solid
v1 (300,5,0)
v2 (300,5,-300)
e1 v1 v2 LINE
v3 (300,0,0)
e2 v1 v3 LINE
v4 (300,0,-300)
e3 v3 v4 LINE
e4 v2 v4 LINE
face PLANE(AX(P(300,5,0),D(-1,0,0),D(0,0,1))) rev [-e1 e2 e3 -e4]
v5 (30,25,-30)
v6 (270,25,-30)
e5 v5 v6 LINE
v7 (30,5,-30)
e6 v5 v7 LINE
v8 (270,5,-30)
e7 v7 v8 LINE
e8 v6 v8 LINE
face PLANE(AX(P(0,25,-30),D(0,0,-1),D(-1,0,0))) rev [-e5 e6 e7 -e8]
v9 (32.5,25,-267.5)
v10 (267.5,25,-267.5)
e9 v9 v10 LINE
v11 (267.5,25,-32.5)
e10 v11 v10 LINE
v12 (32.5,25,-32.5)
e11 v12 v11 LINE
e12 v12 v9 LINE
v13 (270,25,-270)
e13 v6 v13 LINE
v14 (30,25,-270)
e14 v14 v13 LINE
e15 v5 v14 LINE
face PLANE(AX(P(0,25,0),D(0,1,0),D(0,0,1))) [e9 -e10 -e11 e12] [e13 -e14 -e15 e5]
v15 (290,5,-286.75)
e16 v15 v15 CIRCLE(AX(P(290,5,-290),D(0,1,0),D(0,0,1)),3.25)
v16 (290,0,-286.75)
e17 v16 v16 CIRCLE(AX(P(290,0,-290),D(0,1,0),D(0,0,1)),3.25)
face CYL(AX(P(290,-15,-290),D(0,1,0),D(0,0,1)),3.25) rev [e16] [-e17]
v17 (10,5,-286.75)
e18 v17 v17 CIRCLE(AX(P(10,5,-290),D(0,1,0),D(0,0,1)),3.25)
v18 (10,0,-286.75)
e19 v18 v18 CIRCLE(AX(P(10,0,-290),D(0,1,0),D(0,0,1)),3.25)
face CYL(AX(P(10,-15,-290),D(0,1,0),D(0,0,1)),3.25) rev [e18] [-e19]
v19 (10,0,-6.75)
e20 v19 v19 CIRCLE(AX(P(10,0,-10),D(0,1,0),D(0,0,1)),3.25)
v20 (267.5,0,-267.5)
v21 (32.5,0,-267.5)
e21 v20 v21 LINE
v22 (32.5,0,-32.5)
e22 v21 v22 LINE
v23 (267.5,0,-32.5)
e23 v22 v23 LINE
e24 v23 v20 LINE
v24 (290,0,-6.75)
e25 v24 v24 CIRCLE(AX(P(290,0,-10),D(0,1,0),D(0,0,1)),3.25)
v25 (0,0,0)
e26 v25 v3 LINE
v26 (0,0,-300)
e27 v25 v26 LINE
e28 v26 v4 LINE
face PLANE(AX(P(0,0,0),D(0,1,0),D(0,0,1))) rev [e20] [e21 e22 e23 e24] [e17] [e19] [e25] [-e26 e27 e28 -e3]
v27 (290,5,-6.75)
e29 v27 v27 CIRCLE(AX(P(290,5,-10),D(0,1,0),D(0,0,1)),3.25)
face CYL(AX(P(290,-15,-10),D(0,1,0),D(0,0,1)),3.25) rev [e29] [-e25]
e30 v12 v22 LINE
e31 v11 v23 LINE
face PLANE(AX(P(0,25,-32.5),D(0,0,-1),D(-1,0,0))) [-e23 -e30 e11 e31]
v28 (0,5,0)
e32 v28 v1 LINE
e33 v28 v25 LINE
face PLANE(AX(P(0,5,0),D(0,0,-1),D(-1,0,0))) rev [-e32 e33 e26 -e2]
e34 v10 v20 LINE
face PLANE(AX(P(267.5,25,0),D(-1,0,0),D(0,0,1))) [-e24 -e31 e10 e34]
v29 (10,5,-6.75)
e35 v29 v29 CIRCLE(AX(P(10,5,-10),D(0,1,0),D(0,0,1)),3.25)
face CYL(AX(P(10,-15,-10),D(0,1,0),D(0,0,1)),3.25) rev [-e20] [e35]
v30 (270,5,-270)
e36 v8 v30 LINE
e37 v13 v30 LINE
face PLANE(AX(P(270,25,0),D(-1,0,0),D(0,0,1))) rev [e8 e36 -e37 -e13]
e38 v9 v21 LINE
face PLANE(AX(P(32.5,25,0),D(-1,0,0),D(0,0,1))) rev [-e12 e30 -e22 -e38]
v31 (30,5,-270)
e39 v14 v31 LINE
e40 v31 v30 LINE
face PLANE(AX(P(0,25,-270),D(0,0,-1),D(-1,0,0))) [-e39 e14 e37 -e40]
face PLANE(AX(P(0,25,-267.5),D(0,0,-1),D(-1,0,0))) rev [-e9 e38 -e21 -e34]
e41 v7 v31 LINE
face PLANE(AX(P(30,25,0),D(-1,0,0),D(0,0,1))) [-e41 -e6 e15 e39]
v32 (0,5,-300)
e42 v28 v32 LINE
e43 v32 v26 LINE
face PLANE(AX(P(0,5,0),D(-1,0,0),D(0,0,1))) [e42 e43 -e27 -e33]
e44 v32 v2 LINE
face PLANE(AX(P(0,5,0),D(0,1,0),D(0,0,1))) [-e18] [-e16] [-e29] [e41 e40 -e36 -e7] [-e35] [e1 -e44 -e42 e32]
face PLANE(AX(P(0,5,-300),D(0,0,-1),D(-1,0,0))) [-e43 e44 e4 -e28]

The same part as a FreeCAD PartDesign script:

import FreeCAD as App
import Part
import Sketcher

doc = App.newDocument("Part")
params = doc.addObject("Spreadsheet::Sheet", "Params")
for row, (alias, value) in enumerate([
    ("sketch1_width", "300 mm"),
    ("pad1_length", "5 mm"),
    ("sketch2_width", "240 mm"),
    ("sketch2_width2", "230.5 mm"),
    ("pad2_length", "20 mm"),
    ("sketch3_diameter", "6.5 mm"),
    ("pocket1_length", "20 mm"),
    ("sketch4_width", "240 mm"),
    ("pocket2_length", "20 mm"),
    ("sketch5_width", "240 mm"),
    ("sketch5_width2", "235 mm"),
    ("pad3_length", "20 mm"),
    ("sketch6_width", "235 mm"),
    ("pocket3_length", "20 mm"),
], start=1):
    params.set(f"A{row}", alias)
    params.set(f"B{row}", "=" + value)
    params.setAlias(f"B{row}", alias)

body = doc.addObject("PartDesign::Body", "Body")

# Sketch on XZ plane
sketch1 = body.newObject("Sketcher::SketchObject", "Sketch")
sketch1.AttachmentSupport = (doc.getObject("XZ_Plane"), [""])
sketch1.MapMode = "FlatFace"
sketch1.addGeometry([
    Part.LineSegment(App.Vector(0, -300, 0), App.Vector(0, 0, 0)),
    Part.LineSegment(App.Vector(0, 0, 0), App.Vector(300, 0, 0)),
    Part.LineSegment(App.Vector(300, 0, 0), App.Vector(300, -300, 0)),
    Part.LineSegment(App.Vector(300, -300, 0), App.Vector(0, -300, 0)),
], False)
sketch1.addConstraint([
    Sketcher.Constraint("Coincident", 0, 2, 1, 1),
    Sketcher.Constraint("Coincident", 1, 2, 2, 1),
    Sketcher.Constraint("Coincident", 2, 2, 3, 1),
    Sketcher.Constraint("Coincident", 3, 2, 0, 1),
    Sketcher.Constraint("Vertical", 0),
    Sketcher.Constraint("Horizontal", 1),
    Sketcher.Constraint("Vertical", 2),
    Sketcher.Constraint("Horizontal", 3),
    Sketcher.Constraint("Coincident", 0, 2, -1, 1),
    Sketcher.Constraint("Equal", 3, 0),
    Sketcher.Constraint("DistanceX", 1, 1, 1, 2, 300.0),
])
sketch1.setExpression("Constraints[10]", "Params.sketch1_width")
pad1 = body.newObject("PartDesign::Pad", "Pad")
pad1.Profile = sketch1
pad1.setExpression("Length", "Params.pad1_length")
pad1.Reversed = True

# Sketch on XZ plane
sketch2 = body.newObject("Sketcher::SketchObject", "Sketch001")
sketch2.AttachmentSupport = (doc.getObject("XZ_Plane"), [""])
sketch2.MapMode = "FlatFace"
sketch2.AttachmentOffset = App.Placement(App.Vector(0, 0, -5), App.Rotation())
sketch2.addGeometry([
    Part.LineSegment(App.Vector(30, -270, 0), App.Vector(30, -30, 0)),  # 0
    Part.LineSegment(App.Vector(30, -30, 0), App.Vector(270, -30, 0)),  # 1
    Part.LineSegment(App.Vector(270, -30, 0), App.Vector(270, -270, 0)),  # 2
    Part.LineSegment(App.Vector(270, -270, 0), App.Vector(30, -270, 0)),  # 3
    Part.LineSegment(App.Vector(265, -35, 0), App.Vector(35, -35, 0)),  # 4
    Part.LineSegment(App.Vector(35, -35, 0), App.Vector(35, -265, 0)),  # 5
    Part.LineSegment(App.Vector(35, -265, 0), App.Vector(265, -265, 0)),  # 6
    Part.LineSegment(App.Vector(265, -265, 0), App.Vector(265, -35, 0)),  # 7
], False)
sketch2.addConstraint([
    Sketcher.Constraint("Coincident", 0, 2, 1, 1),
    Sketcher.Constraint("Coincident", 1, 2, 2, 1),
    Sketcher.Constraint("Coincident", 2, 2, 3, 1),
    Sketcher.Constraint("Coincident", 3, 2, 0, 1),
    Sketcher.Constraint("Coincident", 4, 2, 5, 1),
    Sketcher.Constraint("Coincident", 5, 2, 6, 1),
    Sketcher.Constraint("Coincident", 6, 2, 7, 1),
    Sketcher.Constraint("Coincident", 7, 2, 4, 1),
    Sketcher.Constraint("Vertical", 0),
    Sketcher.Constraint("Horizontal", 1),
    Sketcher.Constraint("Vertical", 2),
    Sketcher.Constraint("Horizontal", 3),
    Sketcher.Constraint("Horizontal", 4),
    Sketcher.Constraint("Vertical", 5),
    Sketcher.Constraint("Horizontal", 6),
    Sketcher.Constraint("Vertical", 7),
    Sketcher.Constraint("Equal", 3, 0),
    Sketcher.Constraint("Equal", 6, 5),
    Sketcher.Constraint("DistanceX", 1, 1, 1, 2, 240.0),
    Sketcher.Constraint("DistanceX", 4, 2, 4, 1, 230.5),
    Sketcher.Constraint("DistanceX", -1, 1, 0, 2, 30.0),
    Sketcher.Constraint("DistanceY", 0, 2, -1, 1, 30.0),
    Sketcher.Constraint("DistanceX", -1, 1, 4, 2, 34.75),
    Sketcher.Constraint("DistanceY", 4, 2, -1, 1, 34.75),
])
sketch2.setExpression("Constraints[18]", "Params.sketch2_width")
sketch2.setExpression("Constraints[19]", "Params.sketch2_width2")
pad2 = body.newObject("PartDesign::Pad", "Pad001")
pad2.Profile = sketch2
pad2.setExpression("Length", "Params.pad2_length")
pad2.Reversed = True

# Sketch on XZ plane
sketch3 = body.newObject("Sketcher::SketchObject", "Sketch002")
sketch3.AttachmentSupport = (doc.getObject("XZ_Plane"), [""])
sketch3.MapMode = "FlatFace"
sketch3.AttachmentOffset = App.Placement(App.Vector(0, 0, -5), App.Rotation())
sketch3.addGeometry([
    Part.Circle(App.Vector(10, -10, 0), App.Vector(0, 0, 1), 3.2),
    Part.Circle(App.Vector(290, -10, 0), App.Vector(0, 0, 1), 3.2),
    Part.Circle(App.Vector(290, -290, 0), App.Vector(0, 0, 1), 3.2),
    Part.Circle(App.Vector(10, -290, 0), App.Vector(0, 0, 1), 3.2),
], False)
sketch3.addConstraint([
    Sketcher.Constraint("Equal", 0, 1),
    Sketcher.Constraint("Equal", 1, 2),
    Sketcher.Constraint("Equal", 2, 3),
    Sketcher.Constraint("Horizontal", 0, 3, 1, 3),
    Sketcher.Constraint("Horizontal", 2, 3, 3, 3),
    Sketcher.Constraint("Vertical", 1, 3, 2, 3),
    Sketcher.Constraint("Vertical", 0, 3, 3, 3),
    Sketcher.Constraint("Diameter", 0, 6.5),
    Sketcher.Constraint("DistanceX", -1, 1, 0, 3, 10.0),
    Sketcher.Constraint("DistanceY", 0, 3, -1, 1, 10.0),
    Sketcher.Constraint("DistanceX", -1, 1, 1, 3, 290.0),
    Sketcher.Constraint("DistanceY", 2, 3, -1, 1, 290.0),
])
sketch3.setExpression("Constraints[7]", "Params.sketch3_diameter")
pocket1 = body.newObject("PartDesign::Pocket", "Pocket")
pocket1.Profile = sketch3
pocket1.setExpression("Length", "Params.pocket1_length")
pocket1.Reversed = True

# Sketch on XZ plane
sketch4 = body.newObject("Sketcher::SketchObject", "Sketch003")
sketch4.AttachmentSupport = (doc.getObject("XZ_Plane"), [""])
sketch4.MapMode = "FlatFace"
sketch4.AttachmentOffset = App.Placement(App.Vector(0, 0, -25), App.Rotation())
sketch4.addGeometry([
    Part.LineSegment(App.Vector(30, -270, 0), App.Vector(30, -30, 0)),
    Part.LineSegment(App.Vector(30, -30, 0), App.Vector(270, -30, 0)),
    Part.LineSegment(App.Vector(270, -30, 0), App.Vector(270, -270, 0)),
    Part.LineSegment(App.Vector(270, -270, 0), App.Vector(30, -270, 0)),
], False)
sketch4.addConstraint([
    Sketcher.Constraint("Coincident", 0, 2, 1, 1),
    Sketcher.Constraint("Coincident", 1, 2, 2, 1),
    Sketcher.Constraint("Coincident", 2, 2, 3, 1),
    Sketcher.Constraint("Coincident", 3, 2, 0, 1),
    Sketcher.Constraint("Vertical", 0),
    Sketcher.Constraint("Horizontal", 1),
    Sketcher.Constraint("Vertical", 2),
    Sketcher.Constraint("Horizontal", 3),
    Sketcher.Constraint("Equal", 3, 0),
    Sketcher.Constraint("DistanceX", 1, 1, 1, 2, 240.0),
    Sketcher.Constraint("DistanceX", -1, 1, 0, 2, 30.0),
    Sketcher.Constraint("DistanceY", 0, 2, -1, 1, 30.0),
])
sketch4.setExpression("Constraints[9]", "Params.sketch4_width")
pocket2 = body.newObject("PartDesign::Pocket", "Pocket001")
pocket2.Profile = sketch4
pocket2.setExpression("Length", "Params.pocket2_length")
pocket2.Reversed = True

# Sketch on XZ plane
sketch5 = body.newObject("Sketcher::SketchObject", "Sketch004")
sketch5.AttachmentSupport = (doc.getObject("XZ_Plane"), [""])
sketch5.MapMode = "FlatFace"
sketch5.AttachmentOffset = App.Placement(App.Vector(0, 0, -5), App.Rotation())
sketch5.addGeometry([
    Part.LineSegment(App.Vector(30, -270, 0), App.Vector(30, -30, 0)),  # 0
    Part.LineSegment(App.Vector(30, -30, 0), App.Vector(270, -30, 0)),  # 1
    Part.LineSegment(App.Vector(270, -30, 0), App.Vector(270, -270, 0)),  # 2
    Part.LineSegment(App.Vector(270, -270, 0), App.Vector(30, -270, 0)),  # 3
    Part.LineSegment(App.Vector(268, -32, 0), App.Vector(32, -32, 0)),  # 4
    Part.LineSegment(App.Vector(32, -32, 0), App.Vector(32, -268, 0)),  # 5
    Part.LineSegment(App.Vector(32, -268, 0), App.Vector(268, -268, 0)),  # 6
    Part.LineSegment(App.Vector(268, -268, 0), App.Vector(268, -32, 0)),  # 7
], False)
sketch5.addConstraint([
    Sketcher.Constraint("Coincident", 0, 2, 1, 1),
    Sketcher.Constraint("Coincident", 1, 2, 2, 1),
    Sketcher.Constraint("Coincident", 2, 2, 3, 1),
    Sketcher.Constraint("Coincident", 3, 2, 0, 1),
    Sketcher.Constraint("Coincident", 4, 2, 5, 1),
    Sketcher.Constraint("Coincident", 5, 2, 6, 1),
    Sketcher.Constraint("Coincident", 6, 2, 7, 1),
    Sketcher.Constraint("Coincident", 7, 2, 4, 1),
    Sketcher.Constraint("Vertical", 0),
    Sketcher.Constraint("Horizontal", 1),
    Sketcher.Constraint("Vertical", 2),
    Sketcher.Constraint("Horizontal", 3),
    Sketcher.Constraint("Horizontal", 4),
    Sketcher.Constraint("Vertical", 5),
    Sketcher.Constraint("Horizontal", 6),
    Sketcher.Constraint("Vertical", 7),
    Sketcher.Constraint("Equal", 3, 0),
    Sketcher.Constraint("Equal", 6, 5),
    Sketcher.Constraint("DistanceX", 1, 1, 1, 2, 240.0),
    Sketcher.Constraint("DistanceX", 4, 2, 4, 1, 235.0),
    Sketcher.Constraint("DistanceX", -1, 1, 0, 2, 30.0),
    Sketcher.Constraint("DistanceY", 0, 2, -1, 1, 30.0),
    Sketcher.Constraint("DistanceX", -1, 1, 4, 2, 32.5),
    Sketcher.Constraint("DistanceY", 4, 2, -1, 1, 32.5),
])
sketch5.setExpression("Constraints[18]", "Params.sketch5_width")
sketch5.setExpression("Constraints[19]", "Params.sketch5_width2")
pad3 = body.newObject("PartDesign::Pad", "Pad002")
pad3.Profile = sketch5
pad3.setExpression("Length", "Params.pad3_length")
pad3.Reversed = True

# Sketch on XZ plane
sketch6 = body.newObject("Sketcher::SketchObject", "Sketch005")
sketch6.AttachmentSupport = (doc.getObject("XZ_Plane"), [""])
sketch6.MapMode = "FlatFace"
sketch6.AttachmentOffset = App.Placement(App.Vector(0, 0, -5), App.Rotation())
sketch6.addGeometry([
    Part.LineSegment(App.Vector(32, -268, 0), App.Vector(32, -32, 0)),
    Part.LineSegment(App.Vector(32, -32, 0), App.Vector(268, -32, 0)),
    Part.LineSegment(App.Vector(268, -32, 0), App.Vector(268, -268, 0)),
    Part.LineSegment(App.Vector(268, -268, 0), App.Vector(32, -268, 0)),
], False)
sketch6.addConstraint([
    Sketcher.Constraint("Coincident", 0, 2, 1, 1),
    Sketcher.Constraint("Coincident", 1, 2, 2, 1),
    Sketcher.Constraint("Coincident", 2, 2, 3, 1),
    Sketcher.Constraint("Coincident", 3, 2, 0, 1),
    Sketcher.Constraint("Vertical", 0),
    Sketcher.Constraint("Horizontal", 1),
    Sketcher.Constraint("Vertical", 2),
    Sketcher.Constraint("Horizontal", 3),
    Sketcher.Constraint("Equal", 3, 0),
    Sketcher.Constraint("DistanceX", 1, 1, 1, 2, 235.0),
    Sketcher.Constraint("DistanceX", -1, 1, 0, 2, 32.5),
    Sketcher.Constraint("DistanceY", 0, 2, -1, 1, 32.5),
])
sketch6.setExpression("Constraints[9]", "Params.sketch6_width")
pocket3 = body.newObject("PartDesign::Pocket", "Pocket002")
pocket3.Profile = sketch6
pocket3.setExpression("Length", "Params.pocket3_length")
pocket3.Reversed = True

doc.recompute()
